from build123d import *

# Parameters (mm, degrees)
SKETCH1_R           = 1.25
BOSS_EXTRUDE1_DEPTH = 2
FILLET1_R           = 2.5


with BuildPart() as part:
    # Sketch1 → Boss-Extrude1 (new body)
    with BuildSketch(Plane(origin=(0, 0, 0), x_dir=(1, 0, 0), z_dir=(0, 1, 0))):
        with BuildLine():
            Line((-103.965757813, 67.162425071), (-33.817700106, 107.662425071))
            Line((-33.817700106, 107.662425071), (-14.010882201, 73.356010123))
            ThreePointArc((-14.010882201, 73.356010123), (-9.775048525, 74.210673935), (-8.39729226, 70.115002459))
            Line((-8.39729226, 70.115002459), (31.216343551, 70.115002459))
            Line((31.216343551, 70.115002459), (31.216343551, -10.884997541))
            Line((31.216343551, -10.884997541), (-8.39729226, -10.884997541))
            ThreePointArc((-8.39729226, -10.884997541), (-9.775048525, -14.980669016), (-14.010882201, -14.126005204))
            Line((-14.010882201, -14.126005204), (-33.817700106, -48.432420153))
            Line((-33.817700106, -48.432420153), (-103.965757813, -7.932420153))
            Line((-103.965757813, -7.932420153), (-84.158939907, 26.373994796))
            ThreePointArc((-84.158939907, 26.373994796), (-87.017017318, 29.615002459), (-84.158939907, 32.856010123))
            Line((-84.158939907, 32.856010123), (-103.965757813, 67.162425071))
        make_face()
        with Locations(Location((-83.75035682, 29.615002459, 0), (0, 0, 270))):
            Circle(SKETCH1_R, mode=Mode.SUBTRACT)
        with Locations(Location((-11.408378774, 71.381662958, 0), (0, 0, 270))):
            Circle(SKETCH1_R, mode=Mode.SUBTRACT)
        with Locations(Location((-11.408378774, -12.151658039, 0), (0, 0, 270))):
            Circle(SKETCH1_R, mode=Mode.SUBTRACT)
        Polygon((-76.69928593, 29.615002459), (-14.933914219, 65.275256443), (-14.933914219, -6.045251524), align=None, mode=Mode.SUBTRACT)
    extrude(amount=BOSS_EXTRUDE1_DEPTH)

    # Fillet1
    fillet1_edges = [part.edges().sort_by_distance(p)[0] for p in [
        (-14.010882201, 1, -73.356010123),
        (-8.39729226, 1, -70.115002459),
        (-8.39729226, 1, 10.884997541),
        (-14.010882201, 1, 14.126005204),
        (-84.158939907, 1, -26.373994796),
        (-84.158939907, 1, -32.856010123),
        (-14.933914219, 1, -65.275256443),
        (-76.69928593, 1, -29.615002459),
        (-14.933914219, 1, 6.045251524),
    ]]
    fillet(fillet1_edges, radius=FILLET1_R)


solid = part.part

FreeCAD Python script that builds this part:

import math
import FreeCAD as App
import Part
import Sketcher
from FreeCAD import Vector
Q = App.Units.Quantity


def edges_at(feature, points):
    """Names of the edges that pass closest to the given points."""
    edges = feature.Shape.Edges
    near = lambda p: min(range(len(edges)), key=lambda i: edges[i].distToShape(Part.Vertex(*p))[0])
    return sorted({f"Edge{near(p) + 1}" for p in points})


def add_polygon(sketch, points):
    """Adds a closed chain of lines whose ends are joined by coincident constraints."""
    first, n = sketch.GeometryCount, len(points)
    for a, b in zip(points, points[1:] + points[:1]):
        sketch.addGeometry(Part.LineSegment(App.Vector(*a, 0), App.Vector(*b, 0)), False)
    for i in range(n):
        sketch.addConstraint(Sketcher.Constraint("Coincident", first + i, 2, first + (i + 1) % n, 1))

doc = App.newDocument("Part")
body = doc.addObject("PartDesign::Body", "Body")

# Sketch on XZ plane
sketch1 = body.newObject("Sketcher::SketchObject", "Sketch")
sketch1.AttachmentSupport = (doc.getObject("XZ_Plane"), [""])
sketch1.MapMode = "FlatFace"
sketch1.addGeometry(Part.LineSegment(Vector(-33.8, -107.7, 0), Vector(-104, -67.2, 0)), False)  # 0
sketch1.addGeometry(Part.LineSegment(Vector(-104, -67.2, 0), Vector(-84.2, -32.9, 0)), False)  # 1
sketch1.addGeometry(Part.ArcOfCircle(Part.Circle(Vector(-83.8, -29.6, 0), Vector(0, 0, 1), 3.3), math.radians(97), math.radians(263)), False)  # 2
sketch1.addGeometry(Part.LineSegment(Vector(-84.2, -26.4, 0), Vector(-104, 7.9, 0)), False)  # 3
sketch1.addGeometry(Part.LineSegment(Vector(-104, 7.9, 0), Vector(-33.8, 48.4, 0)), False)  # 4
sketch1.addGeometry(Part.LineSegment(Vector(-33.8, 48.4, 0), Vector(-14, 14.1, 0)), False)  # 5
sketch1.addGeometry(Part.ArcOfCircle(Part.Circle(Vector(-11.4, 12.2, 0), Vector(0, 0, 1), 3.3), math.radians(-23), math.radians(143)), False)  # 6
sketch1.addGeometry(Part.LineSegment(Vector(-8.4, 10.9, 0), Vector(31.2, 10.9, 0)), False)  # 7
sketch1.addGeometry(Part.LineSegment(Vector(31.2, 10.9, 0), Vector(31.2, -70.1, 0)), False)  # 8
sketch1.addGeometry(Part.LineSegment(Vector(31.2, -70.1, 0), Vector(-8.4, -70.1, 0)), False)  # 9
sketch1.addGeometry(Part.ArcOfCircle(Part.Circle(Vector(-11.4, -71.4, 0), Vector(0, 0, 1), 3.3), math.radians(-143), math.radians(23)), False)  # 10
sketch1.addGeometry(Part.LineSegment(Vector(-14, -73.4, 0), Vector(-33.8, -107.7, 0)), False)  # 11
sketch1.addGeometry(Part.Circle(Vector(-11.4, 12.2, 0), Vector(0, 0, 1), 1.2), False)  # 12
sketch1.addGeometry(Part.Circle(Vector(-83.8, -29.6, 0), Vector(0, 0, 1), 1.2), False)  # 13
add_polygon(sketch1, [(-76.7, -29.6), (-14.9, -65.3), (-14.9, 6)])  # lines 14-16
sketch1.addGeometry(Part.Circle(Vector(-11.4, -71.4, 0), Vector(0, 0, 1), 1.2), False)  # 17
sketch1.addConstraint([
    Sketcher.Constraint("Coincident", 0, 2, 1, 1),
    Sketcher.Constraint("Coincident", 1, 2, 2, 2),
    Sketcher.Constraint("Coincident", 2, 1, 3, 1),
    Sketcher.Constraint("Coincident", 3, 2, 4, 1),
    Sketcher.Constraint("Coincident", 4, 2, 5, 1),
    Sketcher.Constraint("Coincident", 5, 2, 6, 2),
    Sketcher.Constraint("Coincident", 6, 1, 7, 1),
    Sketcher.Constraint("Coincident", 7, 2, 8, 1),
    Sketcher.Constraint("Coincident", 8, 2, 9, 1),
    Sketcher.Constraint("Coincident", 9, 2, 10, 2),
    Sketcher.Constraint("Coincident", 10, 1, 11, 1),
    Sketcher.Constraint("Coincident", 11, 2, 0, 1),
    Sketcher.Constraint("Horizontal", 7),
    Sketcher.Constraint("Vertical", 8),
    Sketcher.Constraint("Horizontal", 9),
    Sketcher.Constraint("Vertical", 15),
    Sketcher.Constraint("Coincident", 12, 3, 6, 3),
    Sketcher.Constraint("Coincident", 13, 3, 2, 3),
    Sketcher.Constraint("Coincident", 17, 3, 10, 3),
    Sketcher.Constraint("Equal", 2, 6),
    Sketcher.Constraint("Equal", 6, 10),
    Sketcher.Constraint("Equal", 12, 13),
    Sketcher.Constraint("Equal", 13, 17),
    Sketcher.Constraint("Perpendicular", 0, 1),
    Sketcher.Constraint("Perpendicular", 3, 4),
    Sketcher.Constraint("Perpendicular", 4, 5),
    Sketcher.Constraint("Parallel", 1, 11),
    Sketcher.Constraint("Perpendicular", 11, 14),
    Sketcher.Constraint("Perpendicular", 5, 16),
    Sketcher.Constraint("Horizontal", 13, 3, 16, 2),
    Sketcher.Constraint("Vertical", 6, 3, 10, 3),
    Sketcher.Constraint("Vertical", 1, 2, 2, 1),
    Sketcher.Constraint("Vertical", 0, 2, 3, 2),
    Sketcher.Constraint("Vertical", 6, 1, 9, 2),
    Sketcher.Constraint("Vertical", 5, 2, 10, 1),
    Sketcher.Constraint("Vertical", 4, 2, 11, 2),
    Sketcher.Constraint("Equal", 1, 3),
    Sketcher.Constraint("Equal", 3, 5),
    Sketcher.Constraint("Diameter", 12, Q("2.5 mm")),
    Sketcher.Constraint("DistanceY", 8, 2, 8, 1, Q("81 mm")),
    Sketcher.Constraint("Angle", 0, Q("150 deg")),
    Sketcher.Constraint("Distance", 0, Q("81 mm")),
    Sketcher.Constraint("Radius", 2, Q("3.26666 mm")),
    Sketcher.Constraint("DistanceX", 4, 2, -1, 1, Q("33.8177 mm")),
    Sketcher.Constraint("DistanceX", 0, 2, 2, 3, Q("20.215401 mm")),
    Sketcher.Constraint("DistanceX", 7, 1, 7, 2, Q("39.613636 mm")),
    Sketcher.Constraint("DistanceY", 15, 1, 15, 2, Q("71.320508 mm")),
    Sketcher.Constraint("DistanceX", 6, 3, -1, 1, Q("11.408379 mm")),
    Sketcher.Constraint("DistanceY", -1, 1, 6, 3, Q("12.151658 mm")),
    Sketcher.Constraint("DistanceX", 1, 2, -1, 1, Q("84.15894 mm")),
    Sketcher.Constraint("DistanceX", 14, 2, 9, 2, Q("6.536622 mm")),
])
pad1 = body.newObject("PartDesign::Pad", "Pad")
pad1.Profile = sketch1
pad1.Length = 2
pad1.Reversed = True
doc.recompute()

fillet = body.newObject("PartDesign::Fillet", "Fillet")
fillet.Base = (pad1, edges_at(pad1, [
    (-14.011, 1, -73.356),
    (-8.397, 1, -70.115),
    (-8.397, 1, 10.885),
    (-14.011, 1, 14.126),
    (-84.159, 1, -26.374),
    (-84.159, 1, -32.856),
    (-14.934, 1, -65.275),
    (-76.699, 1, -29.615),
    (-14.934, 1, 6.045),
]))
fillet.Radius = 2.5

doc.recompute()
